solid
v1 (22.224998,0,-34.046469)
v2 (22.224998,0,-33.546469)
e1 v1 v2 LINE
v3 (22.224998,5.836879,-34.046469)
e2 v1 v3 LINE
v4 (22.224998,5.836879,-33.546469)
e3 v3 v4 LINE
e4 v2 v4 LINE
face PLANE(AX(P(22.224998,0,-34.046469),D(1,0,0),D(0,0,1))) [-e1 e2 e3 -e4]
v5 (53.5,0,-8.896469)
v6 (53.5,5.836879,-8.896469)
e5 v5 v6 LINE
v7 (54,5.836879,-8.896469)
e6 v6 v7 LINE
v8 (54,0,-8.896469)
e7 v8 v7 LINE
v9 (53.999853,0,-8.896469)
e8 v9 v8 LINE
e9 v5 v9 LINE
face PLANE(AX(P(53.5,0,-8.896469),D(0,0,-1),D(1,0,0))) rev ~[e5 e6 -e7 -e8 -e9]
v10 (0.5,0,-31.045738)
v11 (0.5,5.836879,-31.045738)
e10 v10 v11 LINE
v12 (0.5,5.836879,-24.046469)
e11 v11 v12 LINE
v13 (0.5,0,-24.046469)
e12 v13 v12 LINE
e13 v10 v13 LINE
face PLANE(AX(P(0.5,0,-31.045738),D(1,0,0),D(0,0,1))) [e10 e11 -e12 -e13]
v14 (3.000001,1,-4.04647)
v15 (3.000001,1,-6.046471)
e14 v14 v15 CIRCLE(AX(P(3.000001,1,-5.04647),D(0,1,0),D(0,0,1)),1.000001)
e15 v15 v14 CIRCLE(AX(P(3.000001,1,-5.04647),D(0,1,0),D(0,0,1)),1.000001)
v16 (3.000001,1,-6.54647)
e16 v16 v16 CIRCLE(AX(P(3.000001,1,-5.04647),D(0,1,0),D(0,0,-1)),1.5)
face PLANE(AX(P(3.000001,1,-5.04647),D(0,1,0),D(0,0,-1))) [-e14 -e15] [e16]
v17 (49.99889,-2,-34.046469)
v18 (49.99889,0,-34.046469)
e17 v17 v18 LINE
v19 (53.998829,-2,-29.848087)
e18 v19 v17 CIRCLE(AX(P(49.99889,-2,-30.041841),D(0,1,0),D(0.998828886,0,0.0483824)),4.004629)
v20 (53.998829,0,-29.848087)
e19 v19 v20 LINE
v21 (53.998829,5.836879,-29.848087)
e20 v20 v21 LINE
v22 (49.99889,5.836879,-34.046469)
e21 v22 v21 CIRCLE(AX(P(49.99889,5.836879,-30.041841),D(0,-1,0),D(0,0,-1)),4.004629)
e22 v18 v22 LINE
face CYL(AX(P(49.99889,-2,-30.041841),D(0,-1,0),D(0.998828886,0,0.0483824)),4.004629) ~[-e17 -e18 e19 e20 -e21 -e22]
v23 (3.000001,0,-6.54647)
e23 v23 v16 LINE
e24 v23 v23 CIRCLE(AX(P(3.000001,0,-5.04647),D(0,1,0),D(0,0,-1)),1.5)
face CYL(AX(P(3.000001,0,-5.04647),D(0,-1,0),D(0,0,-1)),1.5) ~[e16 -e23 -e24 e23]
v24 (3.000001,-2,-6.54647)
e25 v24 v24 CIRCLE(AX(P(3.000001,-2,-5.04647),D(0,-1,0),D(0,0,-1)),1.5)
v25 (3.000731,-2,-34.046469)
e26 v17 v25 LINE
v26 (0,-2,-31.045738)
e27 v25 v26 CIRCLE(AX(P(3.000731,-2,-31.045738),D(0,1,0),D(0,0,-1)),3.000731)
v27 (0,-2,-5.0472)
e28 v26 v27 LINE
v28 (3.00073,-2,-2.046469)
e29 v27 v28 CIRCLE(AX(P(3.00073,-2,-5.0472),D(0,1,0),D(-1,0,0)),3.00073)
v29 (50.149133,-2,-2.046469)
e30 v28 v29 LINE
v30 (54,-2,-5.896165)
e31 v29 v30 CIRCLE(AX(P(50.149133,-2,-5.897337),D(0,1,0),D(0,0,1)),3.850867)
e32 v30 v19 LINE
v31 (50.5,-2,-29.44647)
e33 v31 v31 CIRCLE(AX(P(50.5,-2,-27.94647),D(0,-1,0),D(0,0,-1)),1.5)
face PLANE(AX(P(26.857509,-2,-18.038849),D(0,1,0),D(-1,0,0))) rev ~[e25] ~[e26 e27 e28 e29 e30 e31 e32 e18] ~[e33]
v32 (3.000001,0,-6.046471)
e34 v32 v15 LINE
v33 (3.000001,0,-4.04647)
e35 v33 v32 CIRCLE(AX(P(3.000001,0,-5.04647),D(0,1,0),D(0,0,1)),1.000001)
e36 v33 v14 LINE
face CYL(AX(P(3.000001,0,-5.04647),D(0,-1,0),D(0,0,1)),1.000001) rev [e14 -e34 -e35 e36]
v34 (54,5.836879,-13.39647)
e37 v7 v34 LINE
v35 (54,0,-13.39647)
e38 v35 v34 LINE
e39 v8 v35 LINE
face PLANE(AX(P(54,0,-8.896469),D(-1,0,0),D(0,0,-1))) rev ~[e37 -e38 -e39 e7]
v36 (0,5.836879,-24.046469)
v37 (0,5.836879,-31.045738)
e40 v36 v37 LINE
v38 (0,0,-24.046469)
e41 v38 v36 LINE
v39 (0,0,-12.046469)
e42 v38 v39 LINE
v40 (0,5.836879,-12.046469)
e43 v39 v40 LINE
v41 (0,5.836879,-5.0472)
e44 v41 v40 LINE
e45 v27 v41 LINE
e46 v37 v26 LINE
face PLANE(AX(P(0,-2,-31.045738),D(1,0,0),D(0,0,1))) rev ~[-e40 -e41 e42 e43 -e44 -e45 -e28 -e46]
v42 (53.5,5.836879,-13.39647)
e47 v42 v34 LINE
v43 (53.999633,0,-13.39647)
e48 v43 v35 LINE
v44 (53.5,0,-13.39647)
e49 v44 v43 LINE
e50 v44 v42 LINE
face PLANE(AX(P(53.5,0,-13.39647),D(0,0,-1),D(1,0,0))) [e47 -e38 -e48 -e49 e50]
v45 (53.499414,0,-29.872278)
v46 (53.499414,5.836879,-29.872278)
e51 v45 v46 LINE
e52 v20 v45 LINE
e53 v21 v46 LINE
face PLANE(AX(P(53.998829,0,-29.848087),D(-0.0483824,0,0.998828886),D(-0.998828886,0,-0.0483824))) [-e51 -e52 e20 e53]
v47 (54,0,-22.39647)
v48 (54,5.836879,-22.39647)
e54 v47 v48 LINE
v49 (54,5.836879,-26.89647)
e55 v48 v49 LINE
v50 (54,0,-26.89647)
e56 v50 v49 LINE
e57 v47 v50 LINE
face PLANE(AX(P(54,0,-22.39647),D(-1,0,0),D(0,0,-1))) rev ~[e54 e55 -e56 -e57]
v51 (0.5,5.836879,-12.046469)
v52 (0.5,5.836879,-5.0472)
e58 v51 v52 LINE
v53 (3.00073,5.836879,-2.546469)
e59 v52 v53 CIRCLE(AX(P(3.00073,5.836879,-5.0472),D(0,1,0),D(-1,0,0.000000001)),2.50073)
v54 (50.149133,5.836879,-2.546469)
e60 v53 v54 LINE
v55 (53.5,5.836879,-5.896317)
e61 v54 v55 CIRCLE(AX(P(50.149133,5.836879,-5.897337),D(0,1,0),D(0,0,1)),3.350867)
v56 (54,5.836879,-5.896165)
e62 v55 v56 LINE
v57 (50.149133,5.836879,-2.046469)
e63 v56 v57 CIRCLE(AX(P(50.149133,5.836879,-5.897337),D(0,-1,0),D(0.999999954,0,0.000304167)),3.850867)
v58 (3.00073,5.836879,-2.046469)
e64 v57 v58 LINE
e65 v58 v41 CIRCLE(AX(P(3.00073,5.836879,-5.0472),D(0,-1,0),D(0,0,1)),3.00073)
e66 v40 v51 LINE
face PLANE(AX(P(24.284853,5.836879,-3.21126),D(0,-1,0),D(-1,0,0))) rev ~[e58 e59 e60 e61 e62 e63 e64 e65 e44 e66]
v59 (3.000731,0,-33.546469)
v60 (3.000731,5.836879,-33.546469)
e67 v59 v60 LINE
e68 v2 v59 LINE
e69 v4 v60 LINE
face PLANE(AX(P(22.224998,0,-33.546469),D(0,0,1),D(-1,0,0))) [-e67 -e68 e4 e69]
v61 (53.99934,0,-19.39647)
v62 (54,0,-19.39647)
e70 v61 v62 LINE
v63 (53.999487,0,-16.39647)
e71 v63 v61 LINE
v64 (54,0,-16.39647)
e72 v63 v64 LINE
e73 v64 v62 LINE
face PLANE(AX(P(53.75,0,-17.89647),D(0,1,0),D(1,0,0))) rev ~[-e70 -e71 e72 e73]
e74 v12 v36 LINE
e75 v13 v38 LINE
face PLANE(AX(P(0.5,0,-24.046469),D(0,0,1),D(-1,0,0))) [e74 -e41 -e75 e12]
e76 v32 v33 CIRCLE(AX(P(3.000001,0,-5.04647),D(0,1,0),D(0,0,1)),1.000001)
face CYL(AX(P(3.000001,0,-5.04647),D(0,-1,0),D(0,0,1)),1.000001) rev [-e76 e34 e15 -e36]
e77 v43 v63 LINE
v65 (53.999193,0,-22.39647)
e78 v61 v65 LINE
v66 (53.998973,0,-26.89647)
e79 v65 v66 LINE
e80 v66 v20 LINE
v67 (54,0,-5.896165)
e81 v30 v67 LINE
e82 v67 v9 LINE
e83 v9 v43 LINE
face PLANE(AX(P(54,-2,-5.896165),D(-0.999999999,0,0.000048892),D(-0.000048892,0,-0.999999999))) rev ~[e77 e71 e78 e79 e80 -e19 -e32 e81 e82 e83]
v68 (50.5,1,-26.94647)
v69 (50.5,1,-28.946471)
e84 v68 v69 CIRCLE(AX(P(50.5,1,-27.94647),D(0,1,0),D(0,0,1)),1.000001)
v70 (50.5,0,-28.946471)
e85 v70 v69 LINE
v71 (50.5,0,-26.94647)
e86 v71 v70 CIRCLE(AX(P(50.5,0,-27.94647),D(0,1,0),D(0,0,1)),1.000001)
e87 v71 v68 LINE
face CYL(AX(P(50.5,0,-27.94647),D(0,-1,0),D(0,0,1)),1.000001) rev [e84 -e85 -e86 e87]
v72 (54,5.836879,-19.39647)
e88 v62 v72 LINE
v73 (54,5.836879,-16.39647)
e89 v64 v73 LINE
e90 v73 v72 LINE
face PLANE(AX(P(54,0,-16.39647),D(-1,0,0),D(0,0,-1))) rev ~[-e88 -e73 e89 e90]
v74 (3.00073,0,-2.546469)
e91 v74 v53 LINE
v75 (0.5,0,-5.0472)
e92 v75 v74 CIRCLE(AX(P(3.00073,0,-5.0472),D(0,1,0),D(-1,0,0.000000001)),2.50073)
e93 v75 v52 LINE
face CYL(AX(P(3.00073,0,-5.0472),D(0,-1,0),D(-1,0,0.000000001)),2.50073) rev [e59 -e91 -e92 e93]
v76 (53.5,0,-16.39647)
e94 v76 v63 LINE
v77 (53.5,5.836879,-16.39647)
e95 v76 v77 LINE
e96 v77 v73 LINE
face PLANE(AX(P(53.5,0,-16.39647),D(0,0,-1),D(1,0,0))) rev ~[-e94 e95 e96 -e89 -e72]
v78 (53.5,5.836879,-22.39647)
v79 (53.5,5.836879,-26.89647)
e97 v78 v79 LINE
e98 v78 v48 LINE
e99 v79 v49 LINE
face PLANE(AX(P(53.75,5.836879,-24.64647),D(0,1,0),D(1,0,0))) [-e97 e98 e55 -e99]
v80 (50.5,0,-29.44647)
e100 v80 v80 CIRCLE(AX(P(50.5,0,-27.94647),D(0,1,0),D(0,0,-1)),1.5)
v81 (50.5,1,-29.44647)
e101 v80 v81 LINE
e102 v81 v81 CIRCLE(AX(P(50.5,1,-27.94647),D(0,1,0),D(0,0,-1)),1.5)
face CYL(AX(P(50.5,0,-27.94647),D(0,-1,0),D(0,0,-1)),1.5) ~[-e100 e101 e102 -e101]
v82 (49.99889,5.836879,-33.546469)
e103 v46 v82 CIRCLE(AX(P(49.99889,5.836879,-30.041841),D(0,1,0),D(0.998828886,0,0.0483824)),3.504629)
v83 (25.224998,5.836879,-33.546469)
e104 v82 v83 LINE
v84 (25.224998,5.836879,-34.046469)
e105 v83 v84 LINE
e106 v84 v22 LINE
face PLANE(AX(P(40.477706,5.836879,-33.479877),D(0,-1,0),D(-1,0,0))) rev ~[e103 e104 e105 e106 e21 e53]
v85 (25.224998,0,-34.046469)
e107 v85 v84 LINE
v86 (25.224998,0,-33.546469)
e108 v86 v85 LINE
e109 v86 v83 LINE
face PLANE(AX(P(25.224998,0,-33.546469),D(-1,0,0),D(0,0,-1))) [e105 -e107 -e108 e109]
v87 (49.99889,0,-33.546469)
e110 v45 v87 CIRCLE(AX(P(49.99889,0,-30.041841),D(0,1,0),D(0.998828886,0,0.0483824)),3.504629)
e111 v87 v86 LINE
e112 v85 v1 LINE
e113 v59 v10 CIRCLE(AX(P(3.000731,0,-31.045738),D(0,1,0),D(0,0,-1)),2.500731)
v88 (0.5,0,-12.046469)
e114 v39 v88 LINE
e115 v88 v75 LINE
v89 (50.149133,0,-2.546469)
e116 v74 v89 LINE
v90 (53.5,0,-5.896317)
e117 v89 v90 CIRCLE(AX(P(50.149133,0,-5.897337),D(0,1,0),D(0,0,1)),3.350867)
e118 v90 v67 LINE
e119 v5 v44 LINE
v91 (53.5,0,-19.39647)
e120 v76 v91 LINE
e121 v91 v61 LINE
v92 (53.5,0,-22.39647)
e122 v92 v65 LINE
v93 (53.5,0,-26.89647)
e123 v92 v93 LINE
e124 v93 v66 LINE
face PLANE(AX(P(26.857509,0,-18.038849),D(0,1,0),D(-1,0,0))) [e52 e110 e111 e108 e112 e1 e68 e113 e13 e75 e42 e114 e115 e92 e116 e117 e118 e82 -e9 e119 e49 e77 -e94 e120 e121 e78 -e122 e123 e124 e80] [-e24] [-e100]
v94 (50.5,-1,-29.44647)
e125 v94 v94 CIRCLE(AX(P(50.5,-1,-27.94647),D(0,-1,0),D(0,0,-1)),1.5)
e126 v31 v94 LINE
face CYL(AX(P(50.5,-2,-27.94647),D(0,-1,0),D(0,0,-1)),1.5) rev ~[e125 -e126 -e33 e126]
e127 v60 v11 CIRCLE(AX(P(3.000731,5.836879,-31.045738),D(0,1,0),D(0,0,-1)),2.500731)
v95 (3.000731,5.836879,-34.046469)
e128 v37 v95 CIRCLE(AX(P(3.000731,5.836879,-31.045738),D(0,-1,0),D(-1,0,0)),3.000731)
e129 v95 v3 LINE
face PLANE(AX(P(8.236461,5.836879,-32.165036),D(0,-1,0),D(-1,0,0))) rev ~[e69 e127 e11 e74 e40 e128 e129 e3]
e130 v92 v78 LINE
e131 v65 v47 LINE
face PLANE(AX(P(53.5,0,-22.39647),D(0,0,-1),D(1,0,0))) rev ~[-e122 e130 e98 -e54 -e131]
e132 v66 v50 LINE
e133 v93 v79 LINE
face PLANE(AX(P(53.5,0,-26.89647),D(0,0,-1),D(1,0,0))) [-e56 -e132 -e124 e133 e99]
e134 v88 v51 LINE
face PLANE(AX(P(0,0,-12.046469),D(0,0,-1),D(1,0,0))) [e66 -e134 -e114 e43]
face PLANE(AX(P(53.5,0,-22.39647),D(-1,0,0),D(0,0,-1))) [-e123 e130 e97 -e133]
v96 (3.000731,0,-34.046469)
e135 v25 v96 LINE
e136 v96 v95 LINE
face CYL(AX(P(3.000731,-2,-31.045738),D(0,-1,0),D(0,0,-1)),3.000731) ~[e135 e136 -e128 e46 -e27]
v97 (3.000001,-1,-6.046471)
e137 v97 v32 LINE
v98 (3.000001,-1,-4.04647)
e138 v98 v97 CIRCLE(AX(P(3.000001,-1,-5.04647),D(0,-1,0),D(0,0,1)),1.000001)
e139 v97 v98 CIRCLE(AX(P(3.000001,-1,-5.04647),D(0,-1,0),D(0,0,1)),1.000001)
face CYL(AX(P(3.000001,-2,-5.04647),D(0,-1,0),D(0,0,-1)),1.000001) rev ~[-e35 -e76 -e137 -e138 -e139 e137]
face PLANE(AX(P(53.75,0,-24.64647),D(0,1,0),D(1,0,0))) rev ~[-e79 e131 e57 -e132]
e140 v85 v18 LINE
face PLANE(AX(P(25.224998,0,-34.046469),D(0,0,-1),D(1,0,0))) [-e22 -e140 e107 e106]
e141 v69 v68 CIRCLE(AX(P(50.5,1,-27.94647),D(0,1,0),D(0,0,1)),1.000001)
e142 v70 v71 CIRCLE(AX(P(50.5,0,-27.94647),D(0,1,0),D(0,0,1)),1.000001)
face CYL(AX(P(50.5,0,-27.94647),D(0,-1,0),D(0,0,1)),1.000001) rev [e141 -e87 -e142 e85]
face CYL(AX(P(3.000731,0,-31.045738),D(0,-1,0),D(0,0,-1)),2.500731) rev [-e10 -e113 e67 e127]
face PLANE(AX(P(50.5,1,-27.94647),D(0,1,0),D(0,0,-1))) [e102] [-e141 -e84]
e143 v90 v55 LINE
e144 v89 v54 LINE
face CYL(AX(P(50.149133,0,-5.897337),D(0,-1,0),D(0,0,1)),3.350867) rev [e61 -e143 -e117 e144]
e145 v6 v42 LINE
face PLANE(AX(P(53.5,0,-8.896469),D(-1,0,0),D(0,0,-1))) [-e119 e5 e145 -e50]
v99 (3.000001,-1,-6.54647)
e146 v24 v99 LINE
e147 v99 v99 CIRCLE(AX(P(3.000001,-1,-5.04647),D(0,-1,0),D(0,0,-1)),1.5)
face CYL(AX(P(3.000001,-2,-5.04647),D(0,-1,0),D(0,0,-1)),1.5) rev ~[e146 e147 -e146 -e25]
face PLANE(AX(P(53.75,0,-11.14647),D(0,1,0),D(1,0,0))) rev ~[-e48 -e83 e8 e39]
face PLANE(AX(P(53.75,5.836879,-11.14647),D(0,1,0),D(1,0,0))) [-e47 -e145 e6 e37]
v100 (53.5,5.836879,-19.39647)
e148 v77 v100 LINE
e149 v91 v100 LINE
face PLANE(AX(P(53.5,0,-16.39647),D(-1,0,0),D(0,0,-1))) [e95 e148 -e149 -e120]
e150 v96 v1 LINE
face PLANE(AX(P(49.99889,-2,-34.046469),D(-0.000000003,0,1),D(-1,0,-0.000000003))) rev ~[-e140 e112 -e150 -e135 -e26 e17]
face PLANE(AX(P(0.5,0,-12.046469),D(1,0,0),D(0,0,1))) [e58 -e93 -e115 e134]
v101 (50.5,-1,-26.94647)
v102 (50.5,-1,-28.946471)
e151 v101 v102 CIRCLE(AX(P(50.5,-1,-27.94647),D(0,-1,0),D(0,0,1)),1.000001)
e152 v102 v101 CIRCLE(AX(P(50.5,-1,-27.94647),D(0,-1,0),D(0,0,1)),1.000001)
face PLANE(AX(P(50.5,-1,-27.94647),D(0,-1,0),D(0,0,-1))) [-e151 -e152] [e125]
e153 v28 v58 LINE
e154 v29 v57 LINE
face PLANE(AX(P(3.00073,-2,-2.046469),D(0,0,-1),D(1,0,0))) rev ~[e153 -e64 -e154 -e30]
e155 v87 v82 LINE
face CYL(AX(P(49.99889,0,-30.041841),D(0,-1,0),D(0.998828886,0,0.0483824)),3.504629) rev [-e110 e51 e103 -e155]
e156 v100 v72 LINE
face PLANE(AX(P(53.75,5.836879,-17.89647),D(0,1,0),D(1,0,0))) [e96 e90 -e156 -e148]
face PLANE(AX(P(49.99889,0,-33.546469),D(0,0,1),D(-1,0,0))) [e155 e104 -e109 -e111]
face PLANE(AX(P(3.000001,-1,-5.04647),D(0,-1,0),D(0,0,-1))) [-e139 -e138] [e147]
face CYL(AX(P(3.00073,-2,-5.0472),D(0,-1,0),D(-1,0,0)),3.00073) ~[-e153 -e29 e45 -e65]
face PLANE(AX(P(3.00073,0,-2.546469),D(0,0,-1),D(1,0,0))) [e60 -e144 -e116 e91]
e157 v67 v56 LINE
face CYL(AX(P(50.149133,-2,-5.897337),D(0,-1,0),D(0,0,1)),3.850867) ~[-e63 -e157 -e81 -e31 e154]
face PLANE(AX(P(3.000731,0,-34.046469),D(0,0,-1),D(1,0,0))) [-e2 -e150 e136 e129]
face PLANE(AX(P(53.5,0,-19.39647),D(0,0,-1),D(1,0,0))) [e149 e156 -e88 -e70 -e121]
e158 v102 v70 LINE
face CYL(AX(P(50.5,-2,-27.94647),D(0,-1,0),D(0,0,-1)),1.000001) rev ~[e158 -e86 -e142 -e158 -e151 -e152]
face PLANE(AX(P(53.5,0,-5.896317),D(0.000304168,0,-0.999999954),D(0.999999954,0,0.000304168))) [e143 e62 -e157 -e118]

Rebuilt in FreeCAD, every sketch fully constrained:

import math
import FreeCAD as App
import Part
import Sketcher
from FreeCAD import Vector

doc = App.newDocument("Part")
params = doc.addObject("Spreadsheet::Sheet", "Params")
for row, (alias, value) in enumerate([
    ("sketch1_height", "0.5 mm"),
    ("pad1_length", "5.836879 mm"),
    ("sketch2_width", "0.5 mm"),
    ("pad2_length", "5.836879 mm"),
    ("sketch3_width", "0.5 mm"),
    ("pad3_length", "5.836879 mm"),
    ("sketch4_width", "0.5 mm"),
    ("sketch4_height", "4.5 mm"),
    ("pad4_length", "5.836879 mm"),
    ("sketch5_height", "3 mm"),
    ("sketch5_width", "0.5 mm"),
    ("pad5_length", "5.836879 mm"),
    ("sketch6_width", "0.5 mm"),
    ("sketch6_height", "4.5 mm"),
    ("pad6_length", "5.836879 mm"),
    ("pad7_length", "2 mm"),
    ("sketch8_diameter", "3 mm"),
    ("sketch8_diameter2", "2.000001 mm"),
    ("pad8_length", "1 mm"),
    ("sketch9_diameter", "3 mm"),
    ("sketch9_diameter2", "2.000001 mm"),
    ("pocket1_length", "1 mm"),
    ("sketch10_diameter", "2.000001 mm"),
    ("pocket2_length", "9 mm"),
], start=1):
    params.set(f"A{row}", alias)
    params.set(f"B{row}", "=" + value)
    params.setAlias(f"B{row}", alias)

body = doc.addObject("PartDesign::Body", "Body")

sketch1 = body.newObject("Sketcher::SketchObject", "Sketch")
sketch1.AttachmentSupport = (doc.getObject("XZ_Plane"), [""])
sketch1.MapMode = "FlatFace"
sketch1.addGeometry(Part.LineSegment(Vector(25.2, -33.5, 0), Vector(50, -33.5, 0)), False)
sketch1.addGeometry(Part.ArcOfCircle(Part.Circle(Vector(50, -30, 0), Vector(0, 0, 1), 3.5), math.radians(-90), math.radians(3)), False)
sketch1.addGeometry(Part.LineSegment(Vector(53.5, -29.9, 0), Vector(54, -29.8, 0)), False)
sketch1.addGeometry(Part.ArcOfCircle(Part.Circle(Vector(50, -30, 0), Vector(0, 0, 1), 4), math.radians(-90), math.radians(3)), False)
sketch1.addGeometry(Part.LineSegment(Vector(50, -34, 0), Vector(25.2, -34, 0)), False)
sketch1.addGeometry(Part.LineSegment(Vector(25.2, -34, 0), Vector(25.2, -33.5, 0)), False)
sketch1.addConstraint(Sketcher.Constraint("Tangent", 0, 2, 1, 1))
sketch1.addConstraint(Sketcher.Constraint("Coincident", 1, 2, 2, 1))
sketch1.addConstraint(Sketcher.Constraint("Coincident", 2, 2, 3, 2))
sketch1.addConstraint(Sketcher.Constraint("Tangent", 3, 1, 4, 1))
sketch1.addConstraint(Sketcher.Constraint("Coincident", 4, 2, 5, 1))
sketch1.addConstraint(Sketcher.Constraint("Coincident", 5, 2, 0, 1))
sketch1.addConstraint(Sketcher.Constraint("Horizontal", 0))
sketch1.addConstraint(Sketcher.Constraint("Horizontal", 4))
sketch1.addConstraint(Sketcher.Constraint("Vertical", 5))
sketch1.addConstraint(Sketcher.Constraint("Coincident", 3, 3, 1, 3))
sketch1.addConstraint(Sketcher.Constraint("DistanceY", 5, 1, 5, 2, 0.5))
sketch1.addConstraint(Sketcher.Constraint("Radius", 1, 3.504629))
sketch1.addConstraint(Sketcher.Constraint("DistanceX", -1, 1, 4, 2, 25.224998))
sketch1.addConstraint(Sketcher.Constraint("DistanceX", 0, 1, 0, 2, 24.773892))
sketch1.addConstraint(Sketcher.Constraint("DistanceY", 1, 3, -1, 1, 30.041841))
sketch1.addConstraint(Sketcher.Constraint("DistanceY", 1, 2, -1, 1, 29.872278))
sketch1.addConstraint(Sketcher.Constraint("DistanceX", -1, 1, 2, 2, 53.998829))
sketch1.setExpression("Constraints[10]", "Params.sketch1_height")
pad1 = body.newObject("PartDesign::Pad", "Pad")
pad1.Profile = sketch1
pad1.setExpression("Length", "Params.pad1_length")
pad1.Reversed = True
body2 = doc.addObject("PartDesign::Body", "Body001")

sketch2 = body2.newObject("Sketcher::SketchObject", "Sketch001")
sketch2.AttachmentSupport = (doc.getObject("XZ_Plane001"), [""])
sketch2.MapMode = "FlatFace"
sketch2.addGeometry(Part.LineSegment(Vector(3, -2, 0), Vector(50.1, -2, 0)), False)
sketch2.addGeometry(Part.ArcOfCircle(Part.Circle(Vector(50.1, -5.9, 0), Vector(0, 0, 1), 3.9), math.radians(0), math.radians(90)), False)
sketch2.addGeometry(Part.LineSegment(Vector(54, -5.9, 0), Vector(53.5, -5.9, 0)), False)
sketch2.addGeometry(Part.ArcOfCircle(Part.Circle(Vector(50.1, -5.9, 0), Vector(0, 0, 1), 3.4), math.radians(0), math.radians(90)), False)
sketch2.addGeometry(Part.LineSegment(Vector(50.1, -2.5, 0), Vector(3, -2.5, 0)), False)
sketch2.addGeometry(Part.ArcOfCircle(Part.Circle(Vector(3, -5, 0), Vector(0, 0, 1), 2.5), math.radians(90), math.radians(180)), False)
sketch2.addGeometry(Part.LineSegment(Vector(0.5, -5, 0), Vector(0.5, -12, 0)), False)
sketch2.addGeometry(Part.LineSegment(Vector(0.5, -12, 0), Vector(0, -12, 0)), False)
sketch2.addGeometry(Part.LineSegment(Vector(0, -12, 0), Vector(0, -5, 0)), False)
sketch2.addGeometry(Part.ArcOfCircle(Part.Circle(Vector(3, -5, 0), Vector(0, 0, 1), 3), math.radians(90), math.radians(180)), False)
sketch2.addConstraint(Sketcher.Constraint("Tangent", 0, 2, 1, 2))
sketch2.addConstraint(Sketcher.Constraint("Coincident", 1, 1, 2, 1))
sketch2.addConstraint(Sketcher.Constraint("Coincident", 2, 2, 3, 1))
sketch2.addConstraint(Sketcher.Constraint("Tangent", 3, 2, 4, 1))
sketch2.addConstraint(Sketcher.Constraint("Tangent", 4, 2, 5, 1))
sketch2.addConstraint(Sketcher.Constraint("Tangent", 5, 2, 6, 1))
sketch2.addConstraint(Sketcher.Constraint("Coincident", 6, 2, 7, 1))
sketch2.addConstraint(Sketcher.Constraint("Coincident", 7, 2, 8, 1))
sketch2.addConstraint(Sketcher.Constraint("Tangent", 8, 2, 9, 2))
sketch2.addConstraint(Sketcher.Constraint("Tangent", 9, 1, 0, 1))
sketch2.addConstraint(Sketcher.Constraint("Horizontal", 0))
sketch2.addConstraint(Sketcher.Constraint("Horizontal", 4))
sketch2.addConstraint(Sketcher.Constraint("Vertical", 6))
sketch2.addConstraint(Sketcher.Constraint("Horizontal", 7))
sketch2.addConstraint(Sketcher.Constraint("Vertical", 8))
sketch2.addConstraint(Sketcher.Constraint("Coincident", 3, 3, 1, 3))
sketch2.addConstraint(Sketcher.Constraint("Coincident", 9, 3, 5, 3))
sketch2.addConstraint(Sketcher.Constraint("PointOnObject", 7, 2, -2))
sketch2.addConstraint(Sketcher.Constraint("DistanceX", 7, 2, 7, 1, 0.5))
sketch2.addConstraint(Sketcher.Constraint("DistanceX", -1, 1, 1, 1, 54.0))
sketch2.addConstraint(Sketcher.Constraint("DistanceY", 6, 2, 4, 2, 9.5))
sketch2.addConstraint(Sketcher.Constraint("Radius", 5, 2.50073))
sketch2.addConstraint(Sketcher.Constraint("Radius", 1, 3.850867))
sketch2.addConstraint(Sketcher.Constraint("DistanceY", 5, 3, -1, 1, 5.0472))
sketch2.addConstraint(Sketcher.Constraint("DistanceY", 3, 3, 1, 1, 0.001171))
sketch2.addConstraint(Sketcher.Constraint("DistanceY", 3, 3, 2, 2, 0.001019))
sketch2.setExpression("Constraints[18]", "Params.sketch2_width")
pad2 = body2.newObject("PartDesign::Pad", "Pad001")
pad2.Profile = sketch2
pad2.setExpression("Length", "Params.pad2_length")
pad2.Reversed = True
body3 = doc.addObject("PartDesign::Body", "Body002")

sketch3 = body3.newObject("Sketcher::SketchObject", "Sketch002")
sketch3.AttachmentSupport = (doc.getObject("XZ_Plane002"), [""])
sketch3.MapMode = "FlatFace"
sketch3.addGeometry(Part.LineSegment(Vector(0, -31, 0), Vector(0, -24, 0)), False)
sketch3.addGeometry(Part.LineSegment(Vector(0, -24, 0), Vector(0.5, -24, 0)), False)
sketch3.addGeometry(Part.LineSegment(Vector(0.5, -24, 0), Vector(0.5, -31, 0)), False)
sketch3.addGeometry(Part.ArcOfCircle(Part.Circle(Vector(3, -31, 0), Vector(0, 0, 1), 2.5), math.radians(180), math.radians(270)), False)
sketch3.addGeometry(Part.LineSegment(Vector(3, -33.5, 0), Vector(22.2, -33.5, 0)), False)
sketch3.addGeometry(Part.LineSegment(Vector(22.2, -33.5, 0), Vector(22.2, -34, 0)), False)
sketch3.addGeometry(Part.LineSegment(Vector(22.2, -34, 0), Vector(3, -34, 0)), False)
sketch3.addGeometry(Part.ArcOfCircle(Part.Circle(Vector(3, -31, 0), Vector(0, 0, 1), 3), math.radians(-180), math.radians(-90)), False)
sketch3.addConstraint(Sketcher.Constraint("Coincident", 0, 2, 1, 1))
sketch3.addConstraint(Sketcher.Constraint("Coincident", 1, 2, 2, 1))
sketch3.addConstraint(Sketcher.Constraint("Tangent", 2, 2, 3, 1))
sketch3.addConstraint(Sketcher.Constraint("Tangent", 3, 2, 4, 1))
sketch3.addConstraint(Sketcher.Constraint("Coincident", 4, 2, 5, 1))
sketch3.addConstraint(Sketcher.Constraint("Coincident", 5, 2, 6, 1))
sketch3.addConstraint(Sketcher.Constraint("Tangent", 6, 2, 7, 2))
sketch3.addConstraint(Sketcher.Constraint("Tangent", 7, 1, 0, 1))
sketch3.addConstraint(Sketcher.Constraint("Vertical", 0))
sketch3.addConstraint(Sketcher.Constraint("Horizontal", 1))
sketch3.addConstraint(Sketcher.Constraint("Vertical", 2))
sketch3.addConstraint(Sketcher.Constraint("Horizontal", 4))
sketch3.addConstraint(Sketcher.Constraint("Vertical", 5))
sketch3.addConstraint(Sketcher.Constraint("Horizontal", 6))
sketch3.addConstraint(Sketcher.Constraint("Coincident", 7, 3, 3, 3))
sketch3.addConstraint(Sketcher.Constraint("PointOnObject", 0, 2, -2))
sketch3.addConstraint(Sketcher.Constraint("DistanceX", 1, 1, 1, 2, 0.5))
sketch3.addConstraint(Sketcher.Constraint("DistanceY", 6, 2, 1, 2, 10.000001))
sketch3.addConstraint(Sketcher.Constraint("Radius", 3, 2.500731))
sketch3.addConstraint(Sketcher.Constraint("DistanceX", -1, 1, 4, 2, 22.224998))
sketch3.addConstraint(Sketcher.Constraint("DistanceY", 3, 3, -1, 1, 31.045738))
sketch3.setExpression("Constraints[16]", "Params.sketch3_width")
pad3 = body3.newObject("PartDesign::Pad", "Pad002")
pad3.Profile = sketch3
pad3.setExpression("Length", "Params.pad3_length")
pad3.Reversed = True
body4 = doc.addObject("PartDesign::Body", "Body003")

sketch4 = body4.newObject("Sketcher::SketchObject", "Sketch003")
sketch4.AttachmentSupport = (doc.getObject("XZ_Plane003"), [""])
sketch4.MapMode = "FlatFace"
sketch4.addGeometry(Part.LineSegment(Vector(53.5, -26.9, 0), Vector(53.5, -22.4, 0)), False)
sketch4.addGeometry(Part.LineSegment(Vector(53.5, -22.4, 0), Vector(54, -22.4, 0)), False)
sketch4.addGeometry(Part.LineSegment(Vector(54, -22.4, 0), Vector(54, -26.9, 0)), False)
sketch4.addGeometry(Part.LineSegment(Vector(54, -26.9, 0), Vector(53.5, -26.9, 0)), False)
sketch4.addConstraint(Sketcher.Constraint("Coincident", 0, 2, 1, 1))
sketch4.addConstraint(Sketcher.Constraint("Coincident", 1, 2, 2, 1))
sketch4.addConstraint(Sketcher.Constraint("Coincident", 2, 2, 3, 1))
sketch4.addConstraint(Sketcher.Constraint("Coincident", 3, 2, 0, 1))
sketch4.addConstraint(Sketcher.Constraint("Vertical", 0))
sketch4.addConstraint(Sketcher.Constraint("Horizontal", 1))
sketch4.addConstraint(Sketcher.Constraint("Vertical", 2))
sketch4.addConstraint(Sketcher.Constraint("Horizontal", 3))
sketch4.addConstraint(Sketcher.Constraint("DistanceX", 1, 1, 1, 2, 0.5))
sketch4.addConstraint(Sketcher.Constraint("DistanceY", 0, 1, 0, 2, 4.5))
sketch4.addConstraint(Sketcher.Constraint("DistanceX", -1, 1, 1, 2, 54.0))
sketch4.addConstraint(Sketcher.Constraint("DistanceY", 0, 2, -1, 1, 22.39647))
sketch4.setExpression("Constraints[8]", "Params.sketch4_width")
sketch4.setExpression("Constraints[9]", "Params.sketch4_height")
pad4 = body4.newObject("PartDesign::Pad", "Pad003")
pad4.Profile = sketch4
pad4.setExpression("Length", "Params.pad4_length")
pad4.Reversed = True
body5 = doc.addObject("PartDesign::Body", "Body004")

sketch5 = body5.newObject("Sketcher::SketchObject", "Sketch004")
sketch5.AttachmentSupport = (doc.getObject("XZ_Plane004"), [""])
sketch5.MapMode = "FlatFace"
sketch5.addGeometry(Part.LineSegment(Vector(53.5, -19.4, 0), Vector(53.5, -16.4, 0)), False)
sketch5.addGeometry(Part.LineSegment(Vector(53.5, -16.4, 0), Vector(54, -16.4, 0)), False)
sketch5.addGeometry(Part.LineSegment(Vector(54, -16.4, 0), Vector(54, -19.4, 0)), False)
sketch5.addGeometry(Part.LineSegment(Vector(54, -19.4, 0), Vector(53.5, -19.4, 0)), False)
sketch5.addConstraint(Sketcher.Constraint("Coincident", 0, 2, 1, 1))
sketch5.addConstraint(Sketcher.Constraint("Coincident", 1, 2, 2, 1))
sketch5.addConstraint(Sketcher.Constraint("Coincident", 2, 2, 3, 1))
sketch5.addConstraint(Sketcher.Constraint("Coincident", 3, 2, 0, 1))
sketch5.addConstraint(Sketcher.Constraint("Vertical", 0))
sketch5.addConstraint(Sketcher.Constraint("Horizontal", 1))
sketch5.addConstraint(Sketcher.Constraint("Vertical", 2))
sketch5.addConstraint(Sketcher.Constraint("Horizontal", 3))
sketch5.addConstraint(Sketcher.Constraint("DistanceY", 0, 1, 0, 2, 3.0))
sketch5.addConstraint(Sketcher.Constraint("DistanceX", 1, 1, 1, 2, 0.5))
sketch5.addConstraint(Sketcher.Constraint("DistanceX", -1, 1, 1, 2, 54.0))
sketch5.addConstraint(Sketcher.Constraint("DistanceY", 0, 2, -1, 1, 16.39647))
sketch5.setExpression("Constraints[8]", "Params.sketch5_height")
sketch5.setExpression("Constraints[9]", "Params.sketch5_width")
pad5 = body5.newObject("PartDesign::Pad", "Pad004")
pad5.Profile = sketch5
pad5.setExpression("Length", "Params.pad5_length")
pad5.Reversed = True
body6 = doc.addObject("PartDesign::Body", "Body005")

sketch6 = body6.newObject("Sketcher::SketchObject", "Sketch005")
sketch6.AttachmentSupport = (doc.getObject("XZ_Plane005"), [""])
sketch6.MapMode = "FlatFace"
sketch6.addGeometry(Part.LineSegment(Vector(53.5, -13.4, 0), Vector(53.5, -8.9, 0)), False)
sketch6.addGeometry(Part.LineSegment(Vector(53.5, -8.9, 0), Vector(54, -8.9, 0)), False)
sketch6.addGeometry(Part.LineSegment(Vector(54, -8.9, 0), Vector(54, -13.4, 0)), False)
sketch6.addGeometry(Part.LineSegment(Vector(54, -13.4, 0), Vector(53.5, -13.4, 0)), False)
sketch6.addConstraint(Sketcher.Constraint("Coincident", 0, 2, 1, 1))
sketch6.addConstraint(Sketcher.Constraint("Coincident", 1, 2, 2, 1))
sketch6.addConstraint(Sketcher.Constraint("Coincident", 2, 2, 3, 1))
sketch6.addConstraint(Sketcher.Constraint("Coincident", 3, 2, 0, 1))
sketch6.addConstraint(Sketcher.Constraint("Vertical", 0))
sketch6.addConstraint(Sketcher.Constraint("Horizontal", 1))
sketch6.addConstraint(Sketcher.Constraint("Vertical", 2))
sketch6.addConstraint(Sketcher.Constraint("Horizontal", 3))
sketch6.addConstraint(Sketcher.Constraint("DistanceX", 1, 1, 1, 2, 0.5))
sketch6.addConstraint(Sketcher.Constraint("DistanceY", 0, 1, 0, 2, 4.5))
sketch6.addConstraint(Sketcher.Constraint("DistanceX", -1, 1, 1, 2, 54.0))
sketch6.addConstraint(Sketcher.Constraint("DistanceY", 0, 2, -1, 1, 8.896469))
sketch6.setExpression("Constraints[8]", "Params.sketch6_width")
sketch6.setExpression("Constraints[9]", "Params.sketch6_height")
pad6 = body6.newObject("PartDesign::Pad", "Pad005")
pad6.Profile = sketch6
pad6.setExpression("Length", "Params.pad6_length")
pad6.Reversed = True
body.AllowCompound = True
doc.recompute()

boolean = body.newObject("PartDesign::Boolean", "Boolean")
boolean.Type = "Fuse"
boolean.addObjects([body2])
doc.recompute()

boolean2 = body.newObject("PartDesign::Boolean", "Boolean001")
boolean2.Type = "Fuse"
boolean2.addObjects([body3])
doc.recompute()

boolean3 = body.newObject("PartDesign::Boolean", "Boolean002")
boolean3.Type = "Fuse"
boolean3.addObjects([body4])
doc.recompute()

boolean4 = body.newObject("PartDesign::Boolean", "Boolean003")
boolean4.Type = "Fuse"
boolean4.addObjects([body5])
doc.recompute()

boolean5 = body.newObject("PartDesign::Boolean", "Boolean004")
boolean5.Type = "Fuse"
boolean5.addObjects([body6])

sketch7 = body.newObject("Sketcher::SketchObject", "Sketch006")
sketch7.AttachmentSupport = (doc.getObject("XZ_Plane"), [""])
sketch7.MapMode = "FlatFace"
sketch7.AttachmentOffset = App.Placement(Vector(0, 0, 2), App.Rotation())
sketch7.addGeometry(Part.LineSegment(Vector(0, -5, 0), Vector(0, -31, 0)), False)
sketch7.addGeometry(Part.ArcOfCircle(Part.Circle(Vector(3, -31, 0), Vector(0, 0, 1), 3), math.radians(-180), math.radians(-90)), False)
sketch7.addGeometry(Part.LineSegment(Vector(3, -34, 0), Vector(50, -34, 0)), False)
sketch7.addGeometry(Part.ArcOfCircle(Part.Circle(Vector(50, -30, 0), Vector(0, 0, 1), 4), math.radians(-90), math.radians(3)), False)
sketch7.addGeometry(Part.LineSegment(Vector(54, -29.8, 0), Vector(54, -5.9, 0)), False)
sketch7.addGeometry(Part.ArcOfCircle(Part.Circle(Vector(50.1, -5.9, 0), Vector(0, 0, 1), 3.9), math.radians(0), math.radians(90)), False)
sketch7.addGeometry(Part.LineSegment(Vector(50.1, -2, 0), Vector(3, -2, 0)), False)
sketch7.addGeometry(Part.ArcOfCircle(Part.Circle(Vector(3, -5, 0), Vector(0, 0, 1), 3), math.radians(90), math.radians(180)), False)
sketch7.addConstraint(Sketcher.Constraint("Tangent", 0, 2, 1, 1))
sketch7.addConstraint(Sketcher.Constraint("Tangent", 1, 2, 2, 1))
sketch7.addConstraint(Sketcher.Constraint("Tangent", 2, 2, 3, 1))
sketch7.addConstraint(Sketcher.Constraint("Coincident", 3, 2, 4, 1))
sketch7.addConstraint(Sketcher.Constraint("Coincident", 4, 2, 5, 1))
sketch7.addConstraint(Sketcher.Constraint("Tangent", 5, 2, 6, 1))
sketch7.addConstraint(Sketcher.Constraint("Tangent", 6, 2, 7, 1))
sketch7.addConstraint(Sketcher.Constraint("Tangent", 7, 2, 0, 1))
sketch7.addConstraint(Sketcher.Constraint("Vertical", 0))
sketch7.addConstraint(Sketcher.Constraint("Horizontal", 2))
sketch7.addConstraint(Sketcher.Constraint("Horizontal", 6))
sketch7.addConstraint(Sketcher.Constraint("Equal", 1, 7))
sketch7.addConstraint(Sketcher.Constraint("PointOnObject", 0, 2, -2))
sketch7.addConstraint(Sketcher.Constraint("DistanceX", -1, 1, 4, 2, 54.0))
sketch7.addConstraint(Sketcher.Constraint("DistanceY", 2, 2, 5, 2, 32.0))
sketch7.addConstraint(Sketcher.Constraint("Radius", 1, 3.000731))
sketch7.addConstraint(Sketcher.Constraint("Radius", 3, 4.004629))
sketch7.addConstraint(Sketcher.Constraint("Radius", 5, 3.850867))
sketch7.addConstraint(Sketcher.Constraint("DistanceX", 2, 1, 2, 2, 46.998159))
sketch7.addConstraint(Sketcher.Constraint("DistanceY", 7, 3, -1, 1, 5.0472))
sketch7.addConstraint(Sketcher.Constraint("Distance", 4, 23.951922))
sketch7.addConstraint(Sketcher.Constraint("DistanceX", -1, 1, 3, 2, 53.998829))
pad7 = body.newObject("PartDesign::Pad", "Pad006")
pad7.Profile = sketch7
pad7.setExpression("Length", "Params.pad7_length")
pad7.Reversed = True

sketch8 = body.newObject("Sketcher::SketchObject", "Sketch007")
sketch8.AttachmentSupport = (doc.getObject("XZ_Plane"), [""])
sketch8.MapMode = "FlatFace"
sketch8.addGeometry(Part.Circle(Vector(3, -5, 0), Vector(0, 0, 1), 1.5), False)
sketch8.addGeometry(Part.Circle(Vector(3, -5, 0), Vector(0, 0, 1), 1), False)
sketch8.addGeometry(Part.Circle(Vector(50.5, -27.9, 0), Vector(0, 0, 1), 1.5), False)
sketch8.addGeometry(Part.Circle(Vector(50.5, -27.9, 0), Vector(0, 0, 1), 1), False)
sketch8.addConstraint(Sketcher.Constraint("Coincident", 1, 3, 0, 3))
sketch8.addConstraint(Sketcher.Constraint("Coincident", 3, 3, 2, 3))
sketch8.addConstraint(Sketcher.Constraint("Equal", 0, 2))
sketch8.addConstraint(Sketcher.Constraint("Equal", 1, 3))
sketch8.addConstraint(Sketcher.Constraint("Diameter", 0, 3.0))
sketch8.addConstraint(Sketcher.Constraint("Diameter", 1, 2.000001))
sketch8.addConstraint(Sketcher.Constraint("DistanceX", -1, 1, 0, 3, 3.000001))
sketch8.addConstraint(Sketcher.Constraint("DistanceX", -1, 1, 2, 3, 50.5))
sketch8.addConstraint(Sketcher.Constraint("DistanceY", 2, 3, 0, 3, 22.9))
sketch8.addConstraint(Sketcher.Constraint("DistanceY", 0, 3, -1, 1, 5.04647))
sketch8.setExpression("Constraints[4]", "Params.sketch8_diameter")
sketch8.setExpression("Constraints[5]", "Params.sketch8_diameter2")
pad8 = body.newObject("PartDesign::Pad", "Pad007")
pad8.Profile = sketch8
pad8.setExpression("Length", "Params.pad8_length")
pad8.Reversed = True

sketch9 = body.newObject("Sketcher::SketchObject", "Sketch008")
sketch9.AttachmentSupport = (doc.getObject("XZ_Plane"), [""])
sketch9.MapMode = "FlatFace"
sketch9.AttachmentOffset = App.Placement(Vector(0, 0, 2), App.Rotation())
sketch9.addGeometry(Part.Circle(Vector(3, -5, 0), Vector(0, 0, 1), 1.5), False)
sketch9.addGeometry(Part.Circle(Vector(3, -5, 0), Vector(0, 0, 1), 1), False)
sketch9.addGeometry(Part.Circle(Vector(50.5, -27.9, 0), Vector(0, 0, 1), 1.5), False)
sketch9.addGeometry(Part.Circle(Vector(50.5, -27.9, 0), Vector(0, 0, 1), 1), False)
sketch9.addConstraint(Sketcher.Constraint("Coincident", 1, 3, 0, 3))
sketch9.addConstraint(Sketcher.Constraint("Coincident", 3, 3, 2, 3))
sketch9.addConstraint(Sketcher.Constraint("Equal", 0, 2))
sketch9.addConstraint(Sketcher.Constraint("Equal", 1, 3))
sketch9.addConstraint(Sketcher.Constraint("Diameter", 0, 3.0))
sketch9.addConstraint(Sketcher.Constraint("Diameter", 1, 2.000001))
sketch9.addConstraint(Sketcher.Constraint("DistanceX", -1, 1, 0, 3, 3.000001))
sketch9.addConstraint(Sketcher.Constraint("DistanceX", -1, 1, 2, 3, 50.5))
sketch9.addConstraint(Sketcher.Constraint("DistanceY", 2, 3, 0, 3, 22.9))
sketch9.addConstraint(Sketcher.Constraint("DistanceY", 0, 3, -1, 1, 5.04647))
sketch9.setExpression("Constraints[4]", "Params.sketch9_diameter")
sketch9.setExpression("Constraints[5]", "Params.sketch9_diameter2")
pocket1 = body.newObject("PartDesign::Pocket", "Pocket")
pocket1.Profile = sketch9
pocket1.setExpression("Length", "Params.pocket1_length")

sketch10 = body.newObject("Sketcher::SketchObject", "Sketch009")
sketch10.AttachmentSupport = (doc.getObject("XZ_Plane"), [""])
sketch10.MapMode = "FlatFace"
sketch10.AttachmentOffset = App.Placement(Vector(0, 0, 2), App.Rotation())
sketch10.addGeometry(Part.Circle(Vector(3, -5, 0), Vector(0, 0, 1), 1), False)
sketch10.addGeometry(Part.Circle(Vector(50.5, -27.9, 0), Vector(0, 0, 1), 1), False)
sketch10.addConstraint(Sketcher.Constraint("Equal", 0, 1))
sketch10.addConstraint(Sketcher.Constraint("Diameter", 0, 2.000001))
sketch10.addConstraint(Sketcher.Constraint("DistanceX", -1, 1, 0, 3, 3.000001))
sketch10.addConstraint(Sketcher.Constraint("DistanceX", -1, 1, 1, 3, 50.5))
sketch10.addConstraint(Sketcher.Constraint("DistanceY", 1, 3, 0, 3, 22.9))
sketch10.addConstraint(Sketcher.Constraint("DistanceY", 0, 3, -1, 1, 5.04647))
sketch10.setExpression("Constraints[1]", "Params.sketch10_diameter")
pocket2 = body.newObject("PartDesign::Pocket", "Pocket001")
pocket2.Profile = sketch10
pocket2.setExpression("Length", "Params.pocket2_length")

doc.recompute()
